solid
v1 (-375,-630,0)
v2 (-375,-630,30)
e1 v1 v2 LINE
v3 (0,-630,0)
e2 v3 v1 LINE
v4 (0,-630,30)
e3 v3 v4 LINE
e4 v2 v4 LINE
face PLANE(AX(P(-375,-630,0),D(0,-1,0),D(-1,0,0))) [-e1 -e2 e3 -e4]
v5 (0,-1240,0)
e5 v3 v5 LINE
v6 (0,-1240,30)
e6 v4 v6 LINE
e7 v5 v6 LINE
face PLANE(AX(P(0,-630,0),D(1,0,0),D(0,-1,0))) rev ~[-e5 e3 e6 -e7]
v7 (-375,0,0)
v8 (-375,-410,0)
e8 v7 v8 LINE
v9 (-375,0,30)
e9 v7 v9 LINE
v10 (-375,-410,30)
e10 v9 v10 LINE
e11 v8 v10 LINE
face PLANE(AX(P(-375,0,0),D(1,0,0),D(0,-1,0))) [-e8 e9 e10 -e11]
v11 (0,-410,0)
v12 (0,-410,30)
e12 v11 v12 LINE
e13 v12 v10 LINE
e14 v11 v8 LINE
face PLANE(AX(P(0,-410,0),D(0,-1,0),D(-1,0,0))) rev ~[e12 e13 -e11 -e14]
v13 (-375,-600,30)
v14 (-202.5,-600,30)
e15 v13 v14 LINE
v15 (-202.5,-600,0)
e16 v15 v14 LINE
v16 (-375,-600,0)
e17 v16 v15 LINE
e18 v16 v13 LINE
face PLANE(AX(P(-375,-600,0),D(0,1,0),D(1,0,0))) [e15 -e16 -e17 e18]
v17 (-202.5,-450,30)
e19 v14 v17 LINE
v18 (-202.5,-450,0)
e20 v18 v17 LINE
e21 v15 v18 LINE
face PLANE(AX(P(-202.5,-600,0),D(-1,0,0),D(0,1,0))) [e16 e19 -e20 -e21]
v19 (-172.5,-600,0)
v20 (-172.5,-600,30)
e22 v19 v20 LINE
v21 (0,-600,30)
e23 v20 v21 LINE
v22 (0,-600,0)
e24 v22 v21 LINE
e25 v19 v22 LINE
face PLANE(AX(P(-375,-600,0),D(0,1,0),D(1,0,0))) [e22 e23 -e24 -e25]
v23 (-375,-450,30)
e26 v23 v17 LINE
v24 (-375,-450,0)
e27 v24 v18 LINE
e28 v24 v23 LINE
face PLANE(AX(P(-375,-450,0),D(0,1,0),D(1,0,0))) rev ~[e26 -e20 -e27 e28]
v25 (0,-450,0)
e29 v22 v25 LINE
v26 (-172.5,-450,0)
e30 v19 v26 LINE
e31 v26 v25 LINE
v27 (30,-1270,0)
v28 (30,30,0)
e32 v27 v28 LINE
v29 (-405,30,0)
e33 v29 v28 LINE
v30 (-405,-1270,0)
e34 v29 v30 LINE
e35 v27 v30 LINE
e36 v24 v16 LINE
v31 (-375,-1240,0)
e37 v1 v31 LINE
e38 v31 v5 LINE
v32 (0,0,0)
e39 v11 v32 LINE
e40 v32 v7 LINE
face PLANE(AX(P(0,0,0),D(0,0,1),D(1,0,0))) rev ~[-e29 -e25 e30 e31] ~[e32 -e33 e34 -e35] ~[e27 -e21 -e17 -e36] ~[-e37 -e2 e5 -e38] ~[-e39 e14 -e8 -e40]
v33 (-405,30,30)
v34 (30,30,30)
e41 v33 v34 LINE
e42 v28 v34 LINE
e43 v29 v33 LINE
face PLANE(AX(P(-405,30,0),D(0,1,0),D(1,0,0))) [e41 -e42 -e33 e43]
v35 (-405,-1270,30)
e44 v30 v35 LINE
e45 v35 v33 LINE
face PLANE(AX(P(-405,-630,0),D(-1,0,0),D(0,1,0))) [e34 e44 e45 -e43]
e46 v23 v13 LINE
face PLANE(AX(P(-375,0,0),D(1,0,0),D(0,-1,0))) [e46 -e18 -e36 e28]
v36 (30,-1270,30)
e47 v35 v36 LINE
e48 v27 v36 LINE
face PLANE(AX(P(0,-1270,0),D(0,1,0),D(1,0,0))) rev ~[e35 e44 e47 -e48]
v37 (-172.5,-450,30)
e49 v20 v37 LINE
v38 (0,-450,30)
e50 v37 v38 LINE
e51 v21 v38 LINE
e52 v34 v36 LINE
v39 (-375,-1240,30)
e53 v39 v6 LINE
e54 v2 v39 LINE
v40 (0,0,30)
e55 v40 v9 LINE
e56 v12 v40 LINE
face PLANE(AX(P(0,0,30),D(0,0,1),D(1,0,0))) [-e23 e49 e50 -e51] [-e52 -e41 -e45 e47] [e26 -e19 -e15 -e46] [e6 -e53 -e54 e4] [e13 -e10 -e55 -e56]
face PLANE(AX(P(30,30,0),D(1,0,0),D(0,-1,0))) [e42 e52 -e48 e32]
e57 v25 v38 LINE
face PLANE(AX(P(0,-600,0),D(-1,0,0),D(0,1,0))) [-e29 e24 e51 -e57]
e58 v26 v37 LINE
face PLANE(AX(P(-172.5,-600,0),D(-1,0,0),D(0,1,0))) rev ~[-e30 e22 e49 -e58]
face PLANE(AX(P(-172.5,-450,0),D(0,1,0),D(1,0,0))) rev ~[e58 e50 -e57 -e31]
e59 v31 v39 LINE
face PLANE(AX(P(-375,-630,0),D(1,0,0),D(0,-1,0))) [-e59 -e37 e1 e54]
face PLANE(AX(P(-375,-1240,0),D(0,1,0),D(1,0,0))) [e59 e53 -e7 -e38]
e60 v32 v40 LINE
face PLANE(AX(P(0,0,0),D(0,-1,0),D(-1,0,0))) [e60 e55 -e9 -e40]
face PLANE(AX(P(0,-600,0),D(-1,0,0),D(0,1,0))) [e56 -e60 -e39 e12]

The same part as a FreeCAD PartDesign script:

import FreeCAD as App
import Part
import Sketcher

V = App.Vector

doc = App.newDocument("Part")
body = doc.addObject("PartDesign::Body", "Body")

sketch1 = body.newObject("Sketcher::SketchObject", "Sketch")
sketch1.AttachmentSupport = (doc.getObject("XY_Plane"), [""])
sketch1.MapMode = "FlatFace"
sketch1.addGeometry(Part.LineSegment(V(30, 30, 0), V(-405, 30, 0)), False)
sketch1.addGeometry(Part.LineSegment(V(-405, 30, 0), V(-405, -630, 0)), False)
sketch1.addGeometry(Part.LineSegment(V(-405, -630, 0), V(30, -630, 0)), False)
sketch1.addGeometry(Part.LineSegment(V(30, -630, 0), V(30, 30, 0)), False)
sketch1.addGeometry(Part.LineSegment(V(-375, 0, 0), V(0, 0, 0)), False)
sketch1.addGeometry(Part.LineSegment(V(0, 0, 0), V(0, -600, 0)), False)
sketch1.addGeometry(Part.LineSegment(V(0, -600, 0), V(-375, -600, 0)), False)
sketch1.addGeometry(Part.LineSegment(V(-375, -600, 0), V(-375, 0, 0)), False)
sketch1.addConstraint(Sketcher.Constraint("Coincident", 0, 2, 1, 1))
sketch1.addConstraint(Sketcher.Constraint("Coincident", 1, 2, 2, 1))
sketch1.addConstraint(Sketcher.Constraint("Coincident", 2, 2, 3, 1))
sketch1.addConstraint(Sketcher.Constraint("Coincident", 3, 2, 0, 1))
sketch1.addConstraint(Sketcher.Constraint("Coincident", 4, 2, 5, 1))
sketch1.addConstraint(Sketcher.Constraint("Coincident", 5, 2, 6, 1))
sketch1.addConstraint(Sketcher.Constraint("Coincident", 6, 2, 7, 1))
sketch1.addConstraint(Sketcher.Constraint("Coincident", 7, 2, 4, 1))
sketch1.addConstraint(Sketcher.Constraint("Horizontal", 0))
sketch1.addConstraint(Sketcher.Constraint("Vertical", 1))
sketch1.addConstraint(Sketcher.Constraint("Horizontal", 2))
sketch1.addConstraint(Sketcher.Constraint("Vertical", 3))
sketch1.addConstraint(Sketcher.Constraint("Horizontal", 4))
sketch1.addConstraint(Sketcher.Constraint("Vertical", 5))
sketch1.addConstraint(Sketcher.Constraint("Horizontal", 6))
sketch1.addConstraint(Sketcher.Constraint("Vertical", 7))
sketch1.addConstraint(Sketcher.Constraint("Coincident", 4, 2, -1, 1))
sketch1.addConstraint(Sketcher.Constraint("DistanceX", 4, 1, 4, 2, 375.0))
sketch1.addConstraint(Sketcher.Constraint("DistanceY", 5, 2, 5, 1, 600.0))
sketch1.addConstraint(Sketcher.Constraint("DistanceY", -1, 1, 0, 2, 30.0))
sketch1.addConstraint(Sketcher.Constraint("DistanceX", -1, 1, 2, 2, 30.0))
sketch1.addConstraint(Sketcher.Constraint("DistanceY", 2, 2, 5, 2, 30.0))
sketch1.addConstraint(Sketcher.Constraint("DistanceX", 1, 2, 6, 2, 30.0))
pad1 = body.newObject("PartDesign::Pad", "Pad")
pad1.Profile = sketch1
pad1.Length = 30

sketch2 = body.newObject("Sketcher::SketchObject", "Sketch001")
sketch2.AttachmentSupport = (doc.getObject("XY_Plane"), [""])
sketch2.MapMode = "FlatFace"
sketch2.addGeometry(Part.LineSegment(V(-202.5, -450, 0), V(-375, -450, 0)), False)
sketch2.addGeometry(Part.LineSegment(V(-375, -450, 0), V(-375, -410, 0)), False)
sketch2.addGeometry(Part.LineSegment(V(-375, -410, 0), V(0, -410, 0)), False)
sketch2.addGeometry(Part.LineSegment(V(0, -410, 0), V(0, -450, 0)), False)
sketch2.addGeometry(Part.LineSegment(V(0, -450, 0), V(-172.5, -450, 0)), False)
sketch2.addGeometry(Part.LineSegment(V(-172.5, -450, 0), V(-172.5, -600, 0)), False)
sketch2.addGeometry(Part.LineSegment(V(-172.5, -600, 0), V(-202.5, -600, 0)), False)
sketch2.addGeometry(Part.LineSegment(V(-202.5, -600, 0), V(-202.5, -450, 0)), False)
sketch2.addConstraint(Sketcher.Constraint("Coincident", 0, 2, 1, 1))
sketch2.addConstraint(Sketcher.Constraint("Coincident", 1, 2, 2, 1))
sketch2.addConstraint(Sketcher.Constraint("Coincident", 2, 2, 3, 1))
sketch2.addConstraint(Sketcher.Constraint("Coincident", 3, 2, 4, 1))
sketch2.addConstraint(Sketcher.Constraint("Coincident", 4, 2, 5, 1))
sketch2.addConstraint(Sketcher.Constraint("Coincident", 5, 2, 6, 1))
sketch2.addConstraint(Sketcher.Constraint("Coincident", 6, 2, 7, 1))
sketch2.addConstraint(Sketcher.Constraint("Coincident", 7, 2, 0, 1))
sketch2.addConstraint(Sketcher.Constraint("Horizontal", 0))
sketch2.addConstraint(Sketcher.Constraint("Vertical", 1))
sketch2.addConstraint(Sketcher.Constraint("Horizontal", 2))
sketch2.addConstraint(Sketcher.Constraint("Vertical", 3))
sketch2.addConstraint(Sketcher.Constraint("Horizontal", 4))
sketch2.addConstraint(Sketcher.Constraint("Vertical", 5))
sketch2.addConstraint(Sketcher.Constraint("Horizontal", 6))
sketch2.addConstraint(Sketcher.Constraint("Vertical", 7))
sketch2.addConstraint(Sketcher.Constraint("PointOnObject", 2, 2, -2))
sketch2.addConstraint(Sketcher.Constraint("Horizontal", 0, 2, 3, 2))
sketch2.addConstraint(Sketcher.Constraint("Equal", 0, 4))
sketch2.addConstraint(Sketcher.Constraint("DistanceX", 2, 1, 2, 2, 375.0))
sketch2.addConstraint(Sketcher.Constraint("DistanceY", 1, 1, 1, 2, 40.0))
sketch2.addConstraint(Sketcher.Constraint("DistanceY", 5, 2, 5, 1, 150.0))
sketch2.addConstraint(Sketcher.Constraint("DistanceX", 6, 2, 6, 1, 30.0))
sketch2.addConstraint(Sketcher.Constraint("DistanceY", 0, 2, -1, 1, 450.0))
pad2 = body.newObject("PartDesign::Pad", "Pad001")
pad2.Profile = sketch2
pad2.Length = 30

sketch3 = body.newObject("Sketcher::SketchObject", "Sketch002")
sketch3.AttachmentSupport = (doc.getObject("XY_Plane"), [""])
sketch3.MapMode = "FlatFace"
sketch3.addGeometry(Part.LineSegment(V(0, -1240, 0), V(0, -630, 0)), False)
sketch3.addGeometry(Part.LineSegment(V(0, -630, 0), V(30, -630, 0)), False)
sketch3.addGeometry(Part.LineSegment(V(30, -630, 0), V(30, -1270, 0)), False)
sketch3.addGeometry(Part.LineSegment(V(30, -1270, 0), V(-405, -1270, 0)), False)
sketch3.addGeometry(Part.LineSegment(V(-405, -1270, 0), V(-405, -630, 0)), False)
sketch3.addGeometry(Part.LineSegment(V(-405, -630, 0), V(-375, -630, 0)), False)
sketch3.addGeometry(Part.LineSegment(V(-375, -630, 0), V(-375, -1240, 0)), False)
sketch3.addGeometry(Part.LineSegment(V(-375, -1240, 0), V(0, -1240, 0)), False)
sketch3.addConstraint(Sketcher.Constraint("Coincident", 0, 2, 1, 1))
sketch3.addConstraint(Sketcher.Constraint("Coincident", 1, 2, 2, 1))
sketch3.addConstraint(Sketcher.Constraint("Coincident", 2, 2, 3, 1))
sketch3.addConstraint(Sketcher.Constraint("Coincident", 3, 2, 4, 1))
sketch3.addConstraint(Sketcher.Constraint("Coincident", 4, 2, 5, 1))
sketch3.addConstraint(Sketcher.Constraint("Coincident", 5, 2, 6, 1))
sketch3.addConstraint(Sketcher.Constraint("Coincident", 6, 2, 7, 1))
sketch3.addConstraint(Sketcher.Constraint("Coincident", 7, 2, 0, 1))
sketch3.addConstraint(Sketcher.Constraint("Vertical", 0))
sketch3.addConstraint(Sketcher.Constraint("Horizontal", 1))
sketch3.addConstraint(Sketcher.Constraint("Vertical", 2))
sketch3.addConstraint(Sketcher.Constraint("Horizontal", 3))
sketch3.addConstraint(Sketcher.Constraint("Vertical", 4))
sketch3.addConstraint(Sketcher.Constraint("Horizontal", 5))
sketch3.addConstraint(Sketcher.Constraint("Vertical", 6))
sketch3.addConstraint(Sketcher.Constraint("Horizontal", 7))
sketch3.addConstraint(Sketcher.Constraint("PointOnObject", 0, 2, -2))
sketch3.addConstraint(Sketcher.Constraint("Horizontal", 1, 2, 4, 2))
sketch3.addConstraint(Sketcher.Constraint("Equal", 1, 5))
sketch3.addConstraint(Sketcher.Constraint("DistanceX", 1, 1, 1, 2, 30.0))
sketch3.addConstraint(Sketcher.Constraint("DistanceY", 2, 2, 2, 1, 640.0))
sketch3.addConstraint(Sketcher.Constraint("DistanceY", 3, 2, 6, 2, 30.0))
sketch3.addConstraint(Sketcher.Constraint("DistanceX", 3, 2, 3, 1, 435.0))
sketch3.addConstraint(Sketcher.Constraint("DistanceY", 0, 2, -1, 1, 630.0))
pad3 = body.newObject("PartDesign::Pad", "Pad002")
pad3.Profile = sketch3
pad3.Length = 30

doc.recompute()
